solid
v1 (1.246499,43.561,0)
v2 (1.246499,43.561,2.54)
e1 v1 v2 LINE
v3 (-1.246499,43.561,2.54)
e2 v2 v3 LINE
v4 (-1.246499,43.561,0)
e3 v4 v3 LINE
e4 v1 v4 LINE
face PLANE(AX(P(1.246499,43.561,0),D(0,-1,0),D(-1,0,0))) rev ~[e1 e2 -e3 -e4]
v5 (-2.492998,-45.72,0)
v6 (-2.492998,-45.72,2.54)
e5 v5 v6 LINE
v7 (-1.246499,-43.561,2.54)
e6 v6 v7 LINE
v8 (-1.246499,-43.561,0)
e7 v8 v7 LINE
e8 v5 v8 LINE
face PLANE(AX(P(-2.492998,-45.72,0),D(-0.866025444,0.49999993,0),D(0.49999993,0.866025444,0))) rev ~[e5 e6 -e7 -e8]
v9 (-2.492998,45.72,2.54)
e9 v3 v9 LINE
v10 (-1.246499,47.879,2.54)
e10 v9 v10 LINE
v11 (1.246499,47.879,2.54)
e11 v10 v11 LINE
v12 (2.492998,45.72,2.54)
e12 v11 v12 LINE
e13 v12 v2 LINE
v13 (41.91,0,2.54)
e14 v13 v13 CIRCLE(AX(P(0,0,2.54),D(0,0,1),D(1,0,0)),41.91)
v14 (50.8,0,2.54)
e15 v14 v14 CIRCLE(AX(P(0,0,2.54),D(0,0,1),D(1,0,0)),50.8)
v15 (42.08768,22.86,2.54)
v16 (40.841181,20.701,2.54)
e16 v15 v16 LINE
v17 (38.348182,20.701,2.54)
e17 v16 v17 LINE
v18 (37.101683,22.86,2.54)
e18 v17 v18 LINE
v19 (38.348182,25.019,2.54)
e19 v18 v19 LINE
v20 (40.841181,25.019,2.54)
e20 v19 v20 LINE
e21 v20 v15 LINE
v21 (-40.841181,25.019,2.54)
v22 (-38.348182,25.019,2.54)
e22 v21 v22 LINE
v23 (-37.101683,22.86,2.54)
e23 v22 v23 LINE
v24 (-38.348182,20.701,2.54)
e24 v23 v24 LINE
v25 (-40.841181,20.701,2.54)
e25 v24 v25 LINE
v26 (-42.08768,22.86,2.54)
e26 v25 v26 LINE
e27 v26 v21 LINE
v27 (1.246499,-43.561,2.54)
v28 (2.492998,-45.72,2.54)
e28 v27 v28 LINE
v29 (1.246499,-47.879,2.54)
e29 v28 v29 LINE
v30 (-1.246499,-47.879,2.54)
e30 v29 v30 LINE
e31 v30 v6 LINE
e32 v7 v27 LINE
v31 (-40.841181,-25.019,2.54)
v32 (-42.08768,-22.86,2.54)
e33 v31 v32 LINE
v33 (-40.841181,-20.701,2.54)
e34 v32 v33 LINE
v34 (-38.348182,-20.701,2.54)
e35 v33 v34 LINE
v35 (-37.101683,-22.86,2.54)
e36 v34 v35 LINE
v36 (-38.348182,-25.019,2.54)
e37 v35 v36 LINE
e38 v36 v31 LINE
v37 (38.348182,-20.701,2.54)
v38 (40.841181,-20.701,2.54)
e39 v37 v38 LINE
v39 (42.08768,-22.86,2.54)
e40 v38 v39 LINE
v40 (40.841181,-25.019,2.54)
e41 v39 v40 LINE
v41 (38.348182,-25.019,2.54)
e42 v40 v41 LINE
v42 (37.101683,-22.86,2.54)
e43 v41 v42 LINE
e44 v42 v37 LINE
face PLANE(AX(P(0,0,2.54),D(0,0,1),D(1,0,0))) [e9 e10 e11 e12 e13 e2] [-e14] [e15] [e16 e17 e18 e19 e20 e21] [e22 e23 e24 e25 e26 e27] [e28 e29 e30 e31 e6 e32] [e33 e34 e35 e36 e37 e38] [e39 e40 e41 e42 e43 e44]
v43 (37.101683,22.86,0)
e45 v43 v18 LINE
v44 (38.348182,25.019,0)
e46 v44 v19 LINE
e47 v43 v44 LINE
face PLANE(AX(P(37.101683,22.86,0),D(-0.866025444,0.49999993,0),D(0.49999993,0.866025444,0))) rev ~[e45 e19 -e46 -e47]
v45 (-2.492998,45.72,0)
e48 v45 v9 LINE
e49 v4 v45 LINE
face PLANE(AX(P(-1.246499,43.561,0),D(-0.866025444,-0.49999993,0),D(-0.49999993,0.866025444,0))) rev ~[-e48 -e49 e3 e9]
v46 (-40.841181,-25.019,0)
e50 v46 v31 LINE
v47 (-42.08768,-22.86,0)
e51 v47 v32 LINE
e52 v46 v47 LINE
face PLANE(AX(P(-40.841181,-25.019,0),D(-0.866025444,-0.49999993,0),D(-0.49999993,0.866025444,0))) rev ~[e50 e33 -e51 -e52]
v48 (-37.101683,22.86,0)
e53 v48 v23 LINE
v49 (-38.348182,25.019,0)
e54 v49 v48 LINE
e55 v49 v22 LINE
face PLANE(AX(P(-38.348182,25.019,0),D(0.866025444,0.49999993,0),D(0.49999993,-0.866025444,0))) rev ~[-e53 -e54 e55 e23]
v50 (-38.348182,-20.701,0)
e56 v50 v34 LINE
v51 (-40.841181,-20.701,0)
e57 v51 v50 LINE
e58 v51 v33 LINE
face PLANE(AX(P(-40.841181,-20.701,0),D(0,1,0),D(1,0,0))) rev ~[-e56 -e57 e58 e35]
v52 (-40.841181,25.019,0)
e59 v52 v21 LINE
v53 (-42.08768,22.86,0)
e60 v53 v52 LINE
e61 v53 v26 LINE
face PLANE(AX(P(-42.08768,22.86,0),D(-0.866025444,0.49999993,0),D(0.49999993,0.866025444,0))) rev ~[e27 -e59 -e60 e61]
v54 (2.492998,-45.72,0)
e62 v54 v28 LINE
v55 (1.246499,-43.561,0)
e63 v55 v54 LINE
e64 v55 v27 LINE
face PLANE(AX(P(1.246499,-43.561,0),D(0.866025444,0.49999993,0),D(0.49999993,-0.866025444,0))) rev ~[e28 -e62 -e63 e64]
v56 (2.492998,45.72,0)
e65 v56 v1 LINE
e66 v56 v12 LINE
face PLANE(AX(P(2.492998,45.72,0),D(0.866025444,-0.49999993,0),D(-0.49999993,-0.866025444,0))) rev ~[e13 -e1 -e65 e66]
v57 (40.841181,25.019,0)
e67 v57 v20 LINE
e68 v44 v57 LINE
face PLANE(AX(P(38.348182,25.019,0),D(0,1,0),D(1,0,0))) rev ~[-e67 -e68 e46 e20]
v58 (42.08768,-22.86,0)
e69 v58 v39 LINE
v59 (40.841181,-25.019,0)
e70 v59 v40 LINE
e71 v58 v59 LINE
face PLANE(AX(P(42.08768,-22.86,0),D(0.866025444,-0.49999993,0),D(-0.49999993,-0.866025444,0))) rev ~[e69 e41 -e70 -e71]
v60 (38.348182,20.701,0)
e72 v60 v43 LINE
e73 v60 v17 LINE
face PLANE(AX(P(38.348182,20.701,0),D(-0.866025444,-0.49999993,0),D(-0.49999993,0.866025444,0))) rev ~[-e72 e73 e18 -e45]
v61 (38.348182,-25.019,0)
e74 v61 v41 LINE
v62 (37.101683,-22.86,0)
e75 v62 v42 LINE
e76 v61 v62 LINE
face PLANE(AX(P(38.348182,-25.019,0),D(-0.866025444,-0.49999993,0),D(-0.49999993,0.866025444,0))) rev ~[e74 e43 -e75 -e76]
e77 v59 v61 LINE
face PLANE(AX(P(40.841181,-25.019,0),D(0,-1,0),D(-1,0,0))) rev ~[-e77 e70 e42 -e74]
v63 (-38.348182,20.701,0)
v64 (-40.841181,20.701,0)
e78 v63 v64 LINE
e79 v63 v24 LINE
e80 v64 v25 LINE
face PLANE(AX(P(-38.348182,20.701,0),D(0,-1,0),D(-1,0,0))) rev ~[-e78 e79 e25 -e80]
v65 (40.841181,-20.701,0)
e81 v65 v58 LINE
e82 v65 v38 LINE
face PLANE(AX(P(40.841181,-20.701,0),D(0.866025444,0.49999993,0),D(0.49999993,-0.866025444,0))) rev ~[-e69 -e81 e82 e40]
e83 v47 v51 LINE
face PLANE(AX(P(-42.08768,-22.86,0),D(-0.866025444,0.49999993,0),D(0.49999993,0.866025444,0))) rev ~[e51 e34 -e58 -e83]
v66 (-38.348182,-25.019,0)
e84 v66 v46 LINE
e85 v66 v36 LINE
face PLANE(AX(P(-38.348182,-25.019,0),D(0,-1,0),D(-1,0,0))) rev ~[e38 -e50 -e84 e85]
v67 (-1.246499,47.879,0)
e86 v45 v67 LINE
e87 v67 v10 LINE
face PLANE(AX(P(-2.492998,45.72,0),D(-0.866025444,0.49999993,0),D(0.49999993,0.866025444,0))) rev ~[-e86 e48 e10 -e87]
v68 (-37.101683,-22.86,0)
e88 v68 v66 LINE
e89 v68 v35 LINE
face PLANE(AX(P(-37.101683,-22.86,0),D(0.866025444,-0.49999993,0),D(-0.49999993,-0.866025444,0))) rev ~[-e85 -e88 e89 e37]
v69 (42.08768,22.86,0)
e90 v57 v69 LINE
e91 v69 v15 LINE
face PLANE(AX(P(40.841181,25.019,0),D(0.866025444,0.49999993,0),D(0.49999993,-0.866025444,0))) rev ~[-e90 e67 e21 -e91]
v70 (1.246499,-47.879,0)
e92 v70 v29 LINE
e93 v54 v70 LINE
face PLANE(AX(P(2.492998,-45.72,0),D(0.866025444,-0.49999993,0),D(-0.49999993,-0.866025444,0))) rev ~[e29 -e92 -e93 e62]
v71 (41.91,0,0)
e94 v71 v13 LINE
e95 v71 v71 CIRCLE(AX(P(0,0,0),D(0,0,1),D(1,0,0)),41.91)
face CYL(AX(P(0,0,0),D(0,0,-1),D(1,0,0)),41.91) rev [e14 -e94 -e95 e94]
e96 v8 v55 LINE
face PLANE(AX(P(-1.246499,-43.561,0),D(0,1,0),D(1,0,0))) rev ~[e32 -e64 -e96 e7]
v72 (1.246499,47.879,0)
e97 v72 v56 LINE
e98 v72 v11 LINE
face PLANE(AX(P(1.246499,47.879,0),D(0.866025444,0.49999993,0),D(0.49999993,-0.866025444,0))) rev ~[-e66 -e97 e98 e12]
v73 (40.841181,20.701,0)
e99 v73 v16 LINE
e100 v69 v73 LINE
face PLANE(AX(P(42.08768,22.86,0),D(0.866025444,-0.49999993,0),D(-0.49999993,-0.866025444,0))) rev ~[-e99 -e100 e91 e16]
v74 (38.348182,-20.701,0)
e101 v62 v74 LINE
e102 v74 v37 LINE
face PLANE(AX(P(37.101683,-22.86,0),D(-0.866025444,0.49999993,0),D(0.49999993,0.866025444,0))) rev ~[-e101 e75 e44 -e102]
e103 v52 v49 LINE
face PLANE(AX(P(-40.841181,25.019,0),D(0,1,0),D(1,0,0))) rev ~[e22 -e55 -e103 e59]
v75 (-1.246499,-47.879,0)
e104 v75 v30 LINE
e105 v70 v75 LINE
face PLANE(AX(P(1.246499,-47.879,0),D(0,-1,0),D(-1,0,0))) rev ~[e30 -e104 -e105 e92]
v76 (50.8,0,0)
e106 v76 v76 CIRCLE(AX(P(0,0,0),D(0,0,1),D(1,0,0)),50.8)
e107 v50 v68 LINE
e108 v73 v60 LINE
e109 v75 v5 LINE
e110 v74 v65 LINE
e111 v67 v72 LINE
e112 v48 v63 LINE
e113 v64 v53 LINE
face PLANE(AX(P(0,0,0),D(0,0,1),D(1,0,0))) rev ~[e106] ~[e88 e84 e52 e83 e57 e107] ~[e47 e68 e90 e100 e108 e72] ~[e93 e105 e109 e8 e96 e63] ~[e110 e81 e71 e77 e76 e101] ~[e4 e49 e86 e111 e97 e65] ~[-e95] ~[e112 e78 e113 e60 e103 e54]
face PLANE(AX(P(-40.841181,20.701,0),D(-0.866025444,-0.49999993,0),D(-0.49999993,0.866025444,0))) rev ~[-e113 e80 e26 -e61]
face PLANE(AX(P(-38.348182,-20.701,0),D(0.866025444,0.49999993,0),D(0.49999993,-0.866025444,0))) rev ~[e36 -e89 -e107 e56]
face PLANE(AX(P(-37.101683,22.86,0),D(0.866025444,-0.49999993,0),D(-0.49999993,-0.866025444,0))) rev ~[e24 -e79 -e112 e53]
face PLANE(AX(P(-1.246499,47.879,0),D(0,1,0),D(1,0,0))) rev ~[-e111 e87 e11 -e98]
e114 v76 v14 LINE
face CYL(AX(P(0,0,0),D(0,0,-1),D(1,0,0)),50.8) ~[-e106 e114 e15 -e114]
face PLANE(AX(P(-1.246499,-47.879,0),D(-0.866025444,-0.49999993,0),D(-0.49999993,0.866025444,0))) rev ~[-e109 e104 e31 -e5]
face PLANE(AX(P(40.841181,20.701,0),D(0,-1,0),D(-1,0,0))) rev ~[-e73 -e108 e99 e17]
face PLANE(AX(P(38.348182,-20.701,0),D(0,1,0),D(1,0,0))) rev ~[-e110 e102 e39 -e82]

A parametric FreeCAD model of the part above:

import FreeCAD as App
import Part
import Sketcher

V = App.Vector
Q = App.Units.Quantity


def add_polygon(sketch, points):
    """Adds a closed chain of lines whose ends are joined by coincident constraints."""
    first, n = sketch.GeometryCount, len(points)
    for a, b in zip(points, points[1:] + points[:1]):
        sketch.addGeometry(Part.LineSegment(App.Vector(*a, 0), App.Vector(*b, 0)), False)
    for i in range(n):
        sketch.addConstraint(Sketcher.Constraint("Coincident", first + i, 2, first + (i + 1) % n, 1))

doc = App.newDocument("Part")
body = doc.addObject("PartDesign::Body", "Body")

# Sketch on XY plane
sketch1 = body.newObject("Sketcher::SketchObject", "Sketch")
sketch1.AttachmentSupport = (doc.getObject("XY_Plane"), [""])
sketch1.MapMode = "FlatFace"
sketch1.addGeometry(Part.Circle(V(0, 0, 0), V(0, 0, 1), 50.8), False)  # 0
add_polygon(sketch1, [(-37.1, -22.9), (-38.3, -25), (-40.8, -25), (-42.1, -22.9), (-40.8, -20.7), (-38.3, -20.7)])  # lines 1-6
add_polygon(sketch1, [(1.2, -43.6), (2.5, -45.7), (1.2, -47.9), (-1.2, -47.9), (-2.5, -45.7), (-1.2, -43.6)])  # lines 7-12
add_polygon(sketch1, [(38.3, -20.7), (40.8, -20.7), (42.1, -22.9), (40.8, -25), (38.3, -25), (37.1, -22.9)])  # lines 13-18
add_polygon(sketch1, [(-38.3, 20.7), (-40.8, 20.7), (-42.1, 22.9), (-40.8, 25), (-38.3, 25), (-37.1, 22.9)])  # lines 19-24
sketch1.addGeometry(Part.Circle(V(0, 0, 0), V(0, 0, 1), 41.9), False)  # 25
add_polygon(sketch1, [(37.1, 22.9), (38.3, 25), (40.8, 25), (42.1, 22.9), (40.8, 20.7), (38.3, 20.7)])  # lines 26-31
add_polygon(sketch1, [(-1.2, 43.6), (-2.5, 45.7), (-1.2, 47.9), (1.2, 47.9), (2.5, 45.7), (1.2, 43.6)])  # lines 32-37
sketch1.addConstraint([
    Sketcher.Constraint("Horizontal", 2),
    Sketcher.Constraint("Horizontal", 5),
    Sketcher.Constraint("Horizontal", 9),
    Sketcher.Constraint("Horizontal", 12),
    Sketcher.Constraint("Horizontal", 13),
    Sketcher.Constraint("Horizontal", 16),
    Sketcher.Constraint("Horizontal", 19),
    Sketcher.Constraint("Horizontal", 22),
    Sketcher.Constraint("Horizontal", 27),
    Sketcher.Constraint("Horizontal", 30),
    Sketcher.Constraint("Horizontal", 34),
    Sketcher.Constraint("Horizontal", 37),
    Sketcher.Constraint("Coincident", 0, 3, -1, 1),
    Sketcher.Constraint("Coincident", 25, 3, -1, 1),
    Sketcher.Constraint("Symmetric", 13, 2, 19, 2, -1, 1),
    Sketcher.Constraint("Symmetric", 14, 2, 20, 2, -1, 1),
    Sketcher.Constraint("Symmetric", 15, 2, 21, 2, -1, 1),
    Sketcher.Constraint("Symmetric", 17, 2, 23, 2, -1, 1),
    Sketcher.Constraint("Symmetric", 1, 2, 26, 2, -1, 1),
    Sketcher.Constraint("Symmetric", 3, 2, 28, 2, -1, 1),
    Sketcher.Constraint("Symmetric", 4, 2, 29, 2, -1, 1),
    Sketcher.Constraint("Symmetric", 6, 2, 31, 2, -1, 1),
    Sketcher.Constraint("Symmetric", 7, 2, 32, 2, -1, 1),
    Sketcher.Constraint("Symmetric", 8, 2, 33, 2, -1, 1),
    Sketcher.Constraint("Symmetric", 10, 2, 35, 2, -1, 1),
    Sketcher.Constraint("Symmetric", 11, 2, 36, 2, -1, 1),
    Sketcher.Constraint("Symmetric", 7, 2, 10, 2, -2),
    Sketcher.Constraint("Symmetric", 4, 2, 13, 2, -2),
    Sketcher.Constraint("Symmetric", 3, 2, 14, 2, -2),
    Sketcher.Constraint("Symmetric", 2, 2, 15, 2, -2),
    Sketcher.Constraint("Symmetric", 6, 2, 17, 2, -2),
    Sketcher.Constraint("Parallel", 1, 4),
    Sketcher.Constraint("Parallel", 3, 6),
    Sketcher.Constraint("Parallel", 6, 7),
    Sketcher.Constraint("Parallel", 4, 8),
    Sketcher.Constraint("Parallel", 7, 10),
    Sketcher.Constraint("Parallel", 8, 11),
    Sketcher.Constraint("Parallel", 10, 14),
    Sketcher.Constraint("Parallel", 14, 17),
    Sketcher.Constraint("Parallel", 15, 18),
    Sketcher.Constraint("Parallel", 20, 23),
    Sketcher.Constraint("Parallel", 21, 24),
    Sketcher.Constraint("Parallel", 23, 28),
    Sketcher.Constraint("Parallel", 28, 31),
    Sketcher.Constraint("Parallel", 31, 32),
    Sketcher.Constraint("Parallel", 32, 35),
    Sketcher.Constraint("Horizontal", 3, 2, 6, 2),
    Sketcher.Constraint("Vertical", 2, 2, 4, 2),
    Sketcher.Constraint("Vertical", 9, 2, 11, 2),
    Sketcher.Constraint("Equal", 5, 9),
    Sketcher.Constraint("Equal", 6, 7),
    Sketcher.Constraint("Diameter", 0, Q("4 in")),
    Sketcher.Constraint("Diameter", 25, Q("3.3 in")),
    Sketcher.Constraint("Angle", 1, Q("-119.999995 deg")),
    Sketcher.Constraint("DistanceY", 3, 2, -1, 1, Q("0.9 in")),
    Sketcher.Constraint("DistanceY", 7, 2, -1, 1, Q("1.8 in")),
    Sketcher.Constraint("DistanceY", 2, 2, 4, 2, Q("0.17 in")),
    Sketcher.Constraint("DistanceX", 2, 2, 2, 1, 2.492999),
    Sketcher.Constraint("DistanceX", 2, 2, -1, 1, 40.841181),
])
pad1 = body.newObject("PartDesign::Pad", "Pad")
pad1.Profile = sketch1
pad1.Length = Q("0.1 in")

doc.recompute()
